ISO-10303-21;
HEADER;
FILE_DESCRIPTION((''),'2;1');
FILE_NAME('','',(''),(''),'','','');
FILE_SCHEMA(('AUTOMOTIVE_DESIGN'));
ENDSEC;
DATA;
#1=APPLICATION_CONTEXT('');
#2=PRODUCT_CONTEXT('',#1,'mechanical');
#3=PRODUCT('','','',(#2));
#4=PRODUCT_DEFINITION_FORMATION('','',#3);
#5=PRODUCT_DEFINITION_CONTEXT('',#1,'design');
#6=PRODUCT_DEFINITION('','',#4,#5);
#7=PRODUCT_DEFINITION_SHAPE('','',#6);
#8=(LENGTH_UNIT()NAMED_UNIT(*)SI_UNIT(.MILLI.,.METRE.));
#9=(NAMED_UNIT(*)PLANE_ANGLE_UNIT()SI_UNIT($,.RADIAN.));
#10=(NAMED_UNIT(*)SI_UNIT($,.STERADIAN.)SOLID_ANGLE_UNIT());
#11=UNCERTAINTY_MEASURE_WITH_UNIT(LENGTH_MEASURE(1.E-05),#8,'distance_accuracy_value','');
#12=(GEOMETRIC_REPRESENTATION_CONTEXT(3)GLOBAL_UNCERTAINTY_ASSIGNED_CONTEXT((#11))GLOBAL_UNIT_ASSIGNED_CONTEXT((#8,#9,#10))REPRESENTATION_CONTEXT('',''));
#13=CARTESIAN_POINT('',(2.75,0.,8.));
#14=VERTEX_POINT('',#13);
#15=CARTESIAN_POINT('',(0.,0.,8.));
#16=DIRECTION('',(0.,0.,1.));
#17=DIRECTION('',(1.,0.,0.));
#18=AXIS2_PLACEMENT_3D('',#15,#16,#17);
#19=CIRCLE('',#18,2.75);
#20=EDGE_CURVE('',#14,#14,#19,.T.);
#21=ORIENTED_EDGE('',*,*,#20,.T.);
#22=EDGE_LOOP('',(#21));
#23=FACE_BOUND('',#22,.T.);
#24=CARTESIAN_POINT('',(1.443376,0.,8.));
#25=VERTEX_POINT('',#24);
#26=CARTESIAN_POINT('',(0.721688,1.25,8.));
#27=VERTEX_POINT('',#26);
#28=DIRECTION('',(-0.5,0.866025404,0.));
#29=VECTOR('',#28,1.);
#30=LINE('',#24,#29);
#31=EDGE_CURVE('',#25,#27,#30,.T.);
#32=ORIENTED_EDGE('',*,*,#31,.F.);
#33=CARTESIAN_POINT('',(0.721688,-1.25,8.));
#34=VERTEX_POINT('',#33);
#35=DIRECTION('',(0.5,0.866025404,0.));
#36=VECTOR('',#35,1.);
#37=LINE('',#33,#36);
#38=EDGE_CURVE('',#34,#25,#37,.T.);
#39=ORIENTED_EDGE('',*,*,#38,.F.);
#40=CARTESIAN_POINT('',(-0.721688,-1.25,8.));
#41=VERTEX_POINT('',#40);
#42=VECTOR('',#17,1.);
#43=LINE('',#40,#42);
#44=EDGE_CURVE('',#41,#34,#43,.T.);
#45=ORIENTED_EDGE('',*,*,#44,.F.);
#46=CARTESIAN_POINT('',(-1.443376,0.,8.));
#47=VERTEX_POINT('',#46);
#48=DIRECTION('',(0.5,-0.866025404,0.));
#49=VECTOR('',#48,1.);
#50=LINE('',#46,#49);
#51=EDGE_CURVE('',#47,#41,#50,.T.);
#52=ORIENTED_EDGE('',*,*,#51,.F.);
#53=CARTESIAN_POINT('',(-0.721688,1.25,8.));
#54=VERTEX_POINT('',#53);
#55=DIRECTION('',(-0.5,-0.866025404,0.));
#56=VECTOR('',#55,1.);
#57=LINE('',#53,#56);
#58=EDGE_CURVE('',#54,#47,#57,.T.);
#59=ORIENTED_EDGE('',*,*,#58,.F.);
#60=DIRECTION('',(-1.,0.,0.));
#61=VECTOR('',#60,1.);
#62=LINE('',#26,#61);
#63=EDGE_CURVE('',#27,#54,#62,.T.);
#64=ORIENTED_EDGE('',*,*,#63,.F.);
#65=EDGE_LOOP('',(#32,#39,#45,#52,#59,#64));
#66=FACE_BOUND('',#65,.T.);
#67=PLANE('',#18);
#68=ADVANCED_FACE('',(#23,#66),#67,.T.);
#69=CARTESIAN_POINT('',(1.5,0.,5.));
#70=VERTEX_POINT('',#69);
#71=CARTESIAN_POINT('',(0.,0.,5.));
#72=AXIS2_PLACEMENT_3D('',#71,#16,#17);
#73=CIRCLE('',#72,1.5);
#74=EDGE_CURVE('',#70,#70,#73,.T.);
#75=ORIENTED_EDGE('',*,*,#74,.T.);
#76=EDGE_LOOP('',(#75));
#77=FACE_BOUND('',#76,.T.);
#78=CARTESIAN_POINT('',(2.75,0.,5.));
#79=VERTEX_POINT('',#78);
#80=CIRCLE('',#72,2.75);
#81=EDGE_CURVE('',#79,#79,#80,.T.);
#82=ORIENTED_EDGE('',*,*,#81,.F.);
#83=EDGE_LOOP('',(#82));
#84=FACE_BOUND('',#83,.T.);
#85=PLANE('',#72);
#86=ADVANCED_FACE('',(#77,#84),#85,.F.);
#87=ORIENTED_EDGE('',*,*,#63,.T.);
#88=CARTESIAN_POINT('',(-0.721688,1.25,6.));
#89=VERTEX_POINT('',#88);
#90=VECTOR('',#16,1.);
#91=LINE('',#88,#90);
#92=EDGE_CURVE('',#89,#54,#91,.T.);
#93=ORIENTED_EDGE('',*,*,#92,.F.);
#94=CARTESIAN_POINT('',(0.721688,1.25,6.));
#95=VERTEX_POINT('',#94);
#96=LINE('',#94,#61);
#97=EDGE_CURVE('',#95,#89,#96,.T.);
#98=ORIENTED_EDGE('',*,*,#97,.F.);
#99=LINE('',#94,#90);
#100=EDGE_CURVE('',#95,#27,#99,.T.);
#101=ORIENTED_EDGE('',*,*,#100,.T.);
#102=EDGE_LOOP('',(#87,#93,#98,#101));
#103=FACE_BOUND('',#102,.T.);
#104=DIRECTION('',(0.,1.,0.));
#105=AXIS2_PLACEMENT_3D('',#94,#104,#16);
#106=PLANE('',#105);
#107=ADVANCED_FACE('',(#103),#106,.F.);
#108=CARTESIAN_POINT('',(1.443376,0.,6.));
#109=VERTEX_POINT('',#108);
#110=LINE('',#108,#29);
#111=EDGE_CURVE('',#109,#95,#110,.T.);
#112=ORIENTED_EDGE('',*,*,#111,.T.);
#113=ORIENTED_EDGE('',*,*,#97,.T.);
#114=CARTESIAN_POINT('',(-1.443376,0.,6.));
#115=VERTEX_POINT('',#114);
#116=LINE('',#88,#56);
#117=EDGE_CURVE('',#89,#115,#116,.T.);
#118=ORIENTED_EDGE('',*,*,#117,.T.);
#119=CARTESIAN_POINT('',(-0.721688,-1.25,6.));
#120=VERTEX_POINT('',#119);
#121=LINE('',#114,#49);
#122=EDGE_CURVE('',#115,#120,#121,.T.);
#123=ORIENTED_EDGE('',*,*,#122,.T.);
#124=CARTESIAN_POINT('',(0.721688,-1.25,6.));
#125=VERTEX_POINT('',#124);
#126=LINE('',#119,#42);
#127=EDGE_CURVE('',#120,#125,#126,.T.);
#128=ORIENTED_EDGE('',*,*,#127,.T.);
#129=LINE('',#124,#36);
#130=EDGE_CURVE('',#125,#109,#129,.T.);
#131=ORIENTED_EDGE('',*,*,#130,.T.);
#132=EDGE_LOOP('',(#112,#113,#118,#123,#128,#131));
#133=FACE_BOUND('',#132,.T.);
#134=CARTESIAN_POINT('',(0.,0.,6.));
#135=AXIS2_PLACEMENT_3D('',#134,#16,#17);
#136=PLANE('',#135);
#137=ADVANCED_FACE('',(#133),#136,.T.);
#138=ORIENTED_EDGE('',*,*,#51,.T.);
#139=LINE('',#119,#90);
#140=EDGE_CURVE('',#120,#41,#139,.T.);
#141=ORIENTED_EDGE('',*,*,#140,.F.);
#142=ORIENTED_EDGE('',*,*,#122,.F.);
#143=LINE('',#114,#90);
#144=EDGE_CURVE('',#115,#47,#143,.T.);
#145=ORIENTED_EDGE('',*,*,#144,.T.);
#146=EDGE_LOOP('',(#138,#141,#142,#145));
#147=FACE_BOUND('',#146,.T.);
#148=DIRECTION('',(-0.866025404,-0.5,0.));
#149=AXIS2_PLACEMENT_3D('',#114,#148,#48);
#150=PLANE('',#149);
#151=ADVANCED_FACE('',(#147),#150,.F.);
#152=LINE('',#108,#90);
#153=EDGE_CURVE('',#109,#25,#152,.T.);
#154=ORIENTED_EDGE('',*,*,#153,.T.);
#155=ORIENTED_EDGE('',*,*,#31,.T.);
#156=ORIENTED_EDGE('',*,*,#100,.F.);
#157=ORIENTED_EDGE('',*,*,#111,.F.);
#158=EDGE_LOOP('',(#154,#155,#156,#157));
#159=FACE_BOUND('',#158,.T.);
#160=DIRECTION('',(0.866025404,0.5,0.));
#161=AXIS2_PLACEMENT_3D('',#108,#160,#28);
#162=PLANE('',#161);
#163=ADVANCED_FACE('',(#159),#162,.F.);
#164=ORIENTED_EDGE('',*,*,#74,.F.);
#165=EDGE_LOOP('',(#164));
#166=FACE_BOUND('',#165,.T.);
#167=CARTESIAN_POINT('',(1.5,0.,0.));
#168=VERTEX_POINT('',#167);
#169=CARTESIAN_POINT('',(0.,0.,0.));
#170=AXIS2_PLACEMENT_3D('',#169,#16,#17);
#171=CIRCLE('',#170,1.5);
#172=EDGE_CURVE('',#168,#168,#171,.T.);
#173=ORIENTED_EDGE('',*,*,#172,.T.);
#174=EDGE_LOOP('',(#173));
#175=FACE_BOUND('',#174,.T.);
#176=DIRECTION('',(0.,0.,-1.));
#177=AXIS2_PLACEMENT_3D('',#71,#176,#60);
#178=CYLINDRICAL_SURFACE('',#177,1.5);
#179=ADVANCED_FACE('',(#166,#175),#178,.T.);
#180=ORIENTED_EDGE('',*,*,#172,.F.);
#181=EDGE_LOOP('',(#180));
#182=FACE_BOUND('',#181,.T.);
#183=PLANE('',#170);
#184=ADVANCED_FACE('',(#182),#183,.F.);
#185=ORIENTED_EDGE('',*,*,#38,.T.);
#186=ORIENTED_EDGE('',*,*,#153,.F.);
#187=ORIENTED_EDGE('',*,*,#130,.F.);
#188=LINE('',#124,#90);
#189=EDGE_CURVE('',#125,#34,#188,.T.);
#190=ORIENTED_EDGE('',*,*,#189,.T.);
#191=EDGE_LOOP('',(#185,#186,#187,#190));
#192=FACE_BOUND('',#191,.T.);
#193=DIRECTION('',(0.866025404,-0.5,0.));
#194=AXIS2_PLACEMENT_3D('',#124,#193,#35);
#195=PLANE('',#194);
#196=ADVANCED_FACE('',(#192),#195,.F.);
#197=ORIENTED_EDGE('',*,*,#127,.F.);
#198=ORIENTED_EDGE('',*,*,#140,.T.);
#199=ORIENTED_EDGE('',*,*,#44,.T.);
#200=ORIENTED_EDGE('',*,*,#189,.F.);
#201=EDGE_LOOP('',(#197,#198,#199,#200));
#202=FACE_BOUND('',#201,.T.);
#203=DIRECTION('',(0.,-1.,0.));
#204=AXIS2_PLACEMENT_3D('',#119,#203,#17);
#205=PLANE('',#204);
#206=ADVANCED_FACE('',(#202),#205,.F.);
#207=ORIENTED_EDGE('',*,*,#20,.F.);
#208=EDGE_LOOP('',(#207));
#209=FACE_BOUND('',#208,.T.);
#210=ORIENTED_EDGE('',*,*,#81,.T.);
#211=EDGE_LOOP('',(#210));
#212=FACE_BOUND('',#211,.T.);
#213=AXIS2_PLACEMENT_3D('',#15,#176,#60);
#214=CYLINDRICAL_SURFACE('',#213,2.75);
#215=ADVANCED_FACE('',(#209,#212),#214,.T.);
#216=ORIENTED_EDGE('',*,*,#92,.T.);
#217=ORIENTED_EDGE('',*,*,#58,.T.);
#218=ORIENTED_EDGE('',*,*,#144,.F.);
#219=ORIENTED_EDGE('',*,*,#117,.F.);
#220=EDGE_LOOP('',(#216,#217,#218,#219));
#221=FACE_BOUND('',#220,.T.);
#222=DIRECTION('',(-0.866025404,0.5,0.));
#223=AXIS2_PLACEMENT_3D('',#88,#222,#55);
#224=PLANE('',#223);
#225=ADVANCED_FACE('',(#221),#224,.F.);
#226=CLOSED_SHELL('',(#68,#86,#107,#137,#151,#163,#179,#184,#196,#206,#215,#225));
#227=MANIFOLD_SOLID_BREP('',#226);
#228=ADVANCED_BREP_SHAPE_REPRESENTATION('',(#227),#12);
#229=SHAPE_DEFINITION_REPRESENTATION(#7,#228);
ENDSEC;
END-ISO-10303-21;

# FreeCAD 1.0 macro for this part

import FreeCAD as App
import Part
import Sketcher
from FreeCAD import Vector
Q = App.Units.Quantity


def add_polygon(sketch, points):
    """Adds a closed chain of lines whose ends are joined by coincident constraints."""
    first, n = sketch.GeometryCount, len(points)
    for a, b in zip(points, points[1:] + points[:1]):
        sketch.addGeometry(Part.LineSegment(App.Vector(*a, 0), App.Vector(*b, 0)), False)
    for i in range(n):
        sketch.addConstraint(Sketcher.Constraint("Coincident", first + i, 2, first + (i + 1) % n, 1))

doc = App.newDocument("Part")
body = doc.addObject("PartDesign::Body", "Body")

sketch1 = body.newObject("Sketcher::SketchObject", "Sketch")
sketch1.AttachmentSupport = (doc.getObject("XY_Plane"), [""])
sketch1.MapMode = "FlatFace"
sketch1.addGeometry(Part.Circle(Vector(0, 0, 0), Vector(0, 0, 1), 1.5), False)
sketch1.addConstraint([
    Sketcher.Constraint("Coincident", 0, 3, -1, 1),
    Sketcher.Constraint("Diameter", 0, 3.0),
])
pad1 = body.newObject("PartDesign::Pad", "Pad")
pad1.Profile = sketch1
pad1.Length = 5

sketch2 = body.newObject("Sketcher::SketchObject", "Sketch001")
sketch2.AttachmentSupport = (doc.getObject("XY_Plane"), [""])
sketch2.MapMode = "FlatFace"
sketch2.AttachmentOffset = App.Placement(Vector(0, 0, 5), App.Rotation())
sketch2.addGeometry(Part.Circle(Vector(0, 0, 0), Vector(0, 0, 1), 2.8), False)
sketch2.addConstraint([
    Sketcher.Constraint("Coincident", 0, 3, -1, 1),
    Sketcher.Constraint("Diameter", 0, 5.5),
])
pad2 = body.newObject("PartDesign::Pad", "Pad001")
pad2.Profile = sketch2
pad2.Length = 3

sketch3 = body.newObject("Sketcher::SketchObject", "Sketch002")
sketch3.AttachmentSupport = (doc.getObject("XY_Plane"), [""])
sketch3.MapMode = "FlatFace"
sketch3.AttachmentOffset = App.Placement(Vector(0, 0, 8), App.Rotation())
add_polygon(sketch3, [(1.4, 0), (0.7, 1.2), (-0.7, 1.2), (-1.4, 0), (-0.7, -1.2), (0.7, -1.2)])
sketch3.addConstraint([
    Sketcher.Constraint("Horizontal", 1),
    Sketcher.Constraint("Horizontal", 4),
    Sketcher.Constraint("Symmetric", 0, 2, 3, 2, -1, 1),
    Sketcher.Constraint("Symmetric", 2, 2, 5, 2, -1, 1),
    Sketcher.Constraint("PointOnObject", 2, 2, -1),
    Sketcher.Constraint("Parallel", 2, 5),
    Sketcher.Constraint("Vertical", 1, 2, 3, 2),
    Sketcher.Constraint("Angle", 0, Q("120 deg")),
    Sketcher.Constraint("DistanceY", 3, 2, 1, 2, 2.5),
    Sketcher.Constraint("DistanceX", 1, 2, 1, 1, 1.443376),
])
pocket1 = body.newObject("PartDesign::Pocket", "Pocket")
pocket1.Profile = sketch3
pocket1.Length = 2

doc.recompute()
